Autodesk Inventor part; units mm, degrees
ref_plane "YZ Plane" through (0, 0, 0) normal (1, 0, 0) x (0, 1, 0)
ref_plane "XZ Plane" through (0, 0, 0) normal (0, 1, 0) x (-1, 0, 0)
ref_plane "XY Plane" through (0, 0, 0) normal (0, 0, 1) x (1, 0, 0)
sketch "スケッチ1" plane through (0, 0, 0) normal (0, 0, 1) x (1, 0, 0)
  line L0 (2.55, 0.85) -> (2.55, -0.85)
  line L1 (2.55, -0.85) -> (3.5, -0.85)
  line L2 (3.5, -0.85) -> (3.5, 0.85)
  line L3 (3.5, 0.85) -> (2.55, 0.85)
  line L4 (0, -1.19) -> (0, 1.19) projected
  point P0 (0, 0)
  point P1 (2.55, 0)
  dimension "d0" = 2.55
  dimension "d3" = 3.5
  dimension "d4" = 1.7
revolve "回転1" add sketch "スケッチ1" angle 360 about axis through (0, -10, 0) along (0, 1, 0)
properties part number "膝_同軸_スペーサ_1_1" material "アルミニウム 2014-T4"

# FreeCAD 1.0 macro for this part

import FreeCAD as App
import Part
import Sketcher

doc = App.newDocument("Part")
params = doc.addObject("Spreadsheet::Sheet", "Params")
for row, (alias, value) in enumerate([
    ("sketch1_height", "1.7 mm"),
    ("revolution_angle", "360 deg"),
], start=1):
    params.set(f"A{row}", alias)
    params.set(f"B{row}", "=" + value)
    params.setAlias(f"B{row}", alias)

body = doc.addObject("PartDesign::Body", "Body")

sketch1 = body.newObject("Sketcher::SketchObject", "Sketch")
sketch1.AttachmentSupport = (doc.getObject("XY_Plane"), [""])
sketch1.MapMode = "FlatFace"
sketch1.addGeometry(Part.LineSegment(App.Vector(3.5, 0.8, 0), App.Vector(2.5, 0.8, 0)), False)
sketch1.addGeometry(Part.LineSegment(App.Vector(2.5, 0.8, 0), App.Vector(2.5, -0.8, 0)), False)
sketch1.addGeometry(Part.LineSegment(App.Vector(2.5, -0.8, 0), App.Vector(3.5, -0.8, 0)), False)
sketch1.addGeometry(Part.LineSegment(App.Vector(3.5, -0.8, 0), App.Vector(3.5, 0.8, 0)), False)
sketch1.addConstraint(Sketcher.Constraint("Coincident", 0, 2, 1, 1))
sketch1.addConstraint(Sketcher.Constraint("Coincident", 1, 2, 2, 1))
sketch1.addConstraint(Sketcher.Constraint("Coincident", 2, 2, 3, 1))
sketch1.addConstraint(Sketcher.Constraint("Coincident", 3, 2, 0, 1))
sketch1.addConstraint(Sketcher.Constraint("Horizontal", 0))
sketch1.addConstraint(Sketcher.Constraint("Vertical", 1))
sketch1.addConstraint(Sketcher.Constraint("Horizontal", 2))
sketch1.addConstraint(Sketcher.Constraint("Vertical", 3))
sketch1.addConstraint(Sketcher.Constraint("DistanceY", 1, 2, 1, 1, 1.7))
sketch1.addConstraint(Sketcher.Constraint("DistanceX", -1, 1, 2, 2, 3.5))
sketch1.addConstraint(Sketcher.Constraint("DistanceX", -1, 1, 0, 2, 2.55))
sketch1.addConstraint(Sketcher.Constraint("DistanceY", -1, 1, 0, 2, 0.85))
sketch1.setExpression("Constraints[8]", "Params.sketch1_height")
revolution = body.newObject("PartDesign::Revolution", "Revolution")
revolution.Profile = sketch1
revolution.ReferenceAxis = (sketch1, ["V_Axis"])
revolution.setExpression("Angle", "Params.revolution_angle")

doc.recompute()
